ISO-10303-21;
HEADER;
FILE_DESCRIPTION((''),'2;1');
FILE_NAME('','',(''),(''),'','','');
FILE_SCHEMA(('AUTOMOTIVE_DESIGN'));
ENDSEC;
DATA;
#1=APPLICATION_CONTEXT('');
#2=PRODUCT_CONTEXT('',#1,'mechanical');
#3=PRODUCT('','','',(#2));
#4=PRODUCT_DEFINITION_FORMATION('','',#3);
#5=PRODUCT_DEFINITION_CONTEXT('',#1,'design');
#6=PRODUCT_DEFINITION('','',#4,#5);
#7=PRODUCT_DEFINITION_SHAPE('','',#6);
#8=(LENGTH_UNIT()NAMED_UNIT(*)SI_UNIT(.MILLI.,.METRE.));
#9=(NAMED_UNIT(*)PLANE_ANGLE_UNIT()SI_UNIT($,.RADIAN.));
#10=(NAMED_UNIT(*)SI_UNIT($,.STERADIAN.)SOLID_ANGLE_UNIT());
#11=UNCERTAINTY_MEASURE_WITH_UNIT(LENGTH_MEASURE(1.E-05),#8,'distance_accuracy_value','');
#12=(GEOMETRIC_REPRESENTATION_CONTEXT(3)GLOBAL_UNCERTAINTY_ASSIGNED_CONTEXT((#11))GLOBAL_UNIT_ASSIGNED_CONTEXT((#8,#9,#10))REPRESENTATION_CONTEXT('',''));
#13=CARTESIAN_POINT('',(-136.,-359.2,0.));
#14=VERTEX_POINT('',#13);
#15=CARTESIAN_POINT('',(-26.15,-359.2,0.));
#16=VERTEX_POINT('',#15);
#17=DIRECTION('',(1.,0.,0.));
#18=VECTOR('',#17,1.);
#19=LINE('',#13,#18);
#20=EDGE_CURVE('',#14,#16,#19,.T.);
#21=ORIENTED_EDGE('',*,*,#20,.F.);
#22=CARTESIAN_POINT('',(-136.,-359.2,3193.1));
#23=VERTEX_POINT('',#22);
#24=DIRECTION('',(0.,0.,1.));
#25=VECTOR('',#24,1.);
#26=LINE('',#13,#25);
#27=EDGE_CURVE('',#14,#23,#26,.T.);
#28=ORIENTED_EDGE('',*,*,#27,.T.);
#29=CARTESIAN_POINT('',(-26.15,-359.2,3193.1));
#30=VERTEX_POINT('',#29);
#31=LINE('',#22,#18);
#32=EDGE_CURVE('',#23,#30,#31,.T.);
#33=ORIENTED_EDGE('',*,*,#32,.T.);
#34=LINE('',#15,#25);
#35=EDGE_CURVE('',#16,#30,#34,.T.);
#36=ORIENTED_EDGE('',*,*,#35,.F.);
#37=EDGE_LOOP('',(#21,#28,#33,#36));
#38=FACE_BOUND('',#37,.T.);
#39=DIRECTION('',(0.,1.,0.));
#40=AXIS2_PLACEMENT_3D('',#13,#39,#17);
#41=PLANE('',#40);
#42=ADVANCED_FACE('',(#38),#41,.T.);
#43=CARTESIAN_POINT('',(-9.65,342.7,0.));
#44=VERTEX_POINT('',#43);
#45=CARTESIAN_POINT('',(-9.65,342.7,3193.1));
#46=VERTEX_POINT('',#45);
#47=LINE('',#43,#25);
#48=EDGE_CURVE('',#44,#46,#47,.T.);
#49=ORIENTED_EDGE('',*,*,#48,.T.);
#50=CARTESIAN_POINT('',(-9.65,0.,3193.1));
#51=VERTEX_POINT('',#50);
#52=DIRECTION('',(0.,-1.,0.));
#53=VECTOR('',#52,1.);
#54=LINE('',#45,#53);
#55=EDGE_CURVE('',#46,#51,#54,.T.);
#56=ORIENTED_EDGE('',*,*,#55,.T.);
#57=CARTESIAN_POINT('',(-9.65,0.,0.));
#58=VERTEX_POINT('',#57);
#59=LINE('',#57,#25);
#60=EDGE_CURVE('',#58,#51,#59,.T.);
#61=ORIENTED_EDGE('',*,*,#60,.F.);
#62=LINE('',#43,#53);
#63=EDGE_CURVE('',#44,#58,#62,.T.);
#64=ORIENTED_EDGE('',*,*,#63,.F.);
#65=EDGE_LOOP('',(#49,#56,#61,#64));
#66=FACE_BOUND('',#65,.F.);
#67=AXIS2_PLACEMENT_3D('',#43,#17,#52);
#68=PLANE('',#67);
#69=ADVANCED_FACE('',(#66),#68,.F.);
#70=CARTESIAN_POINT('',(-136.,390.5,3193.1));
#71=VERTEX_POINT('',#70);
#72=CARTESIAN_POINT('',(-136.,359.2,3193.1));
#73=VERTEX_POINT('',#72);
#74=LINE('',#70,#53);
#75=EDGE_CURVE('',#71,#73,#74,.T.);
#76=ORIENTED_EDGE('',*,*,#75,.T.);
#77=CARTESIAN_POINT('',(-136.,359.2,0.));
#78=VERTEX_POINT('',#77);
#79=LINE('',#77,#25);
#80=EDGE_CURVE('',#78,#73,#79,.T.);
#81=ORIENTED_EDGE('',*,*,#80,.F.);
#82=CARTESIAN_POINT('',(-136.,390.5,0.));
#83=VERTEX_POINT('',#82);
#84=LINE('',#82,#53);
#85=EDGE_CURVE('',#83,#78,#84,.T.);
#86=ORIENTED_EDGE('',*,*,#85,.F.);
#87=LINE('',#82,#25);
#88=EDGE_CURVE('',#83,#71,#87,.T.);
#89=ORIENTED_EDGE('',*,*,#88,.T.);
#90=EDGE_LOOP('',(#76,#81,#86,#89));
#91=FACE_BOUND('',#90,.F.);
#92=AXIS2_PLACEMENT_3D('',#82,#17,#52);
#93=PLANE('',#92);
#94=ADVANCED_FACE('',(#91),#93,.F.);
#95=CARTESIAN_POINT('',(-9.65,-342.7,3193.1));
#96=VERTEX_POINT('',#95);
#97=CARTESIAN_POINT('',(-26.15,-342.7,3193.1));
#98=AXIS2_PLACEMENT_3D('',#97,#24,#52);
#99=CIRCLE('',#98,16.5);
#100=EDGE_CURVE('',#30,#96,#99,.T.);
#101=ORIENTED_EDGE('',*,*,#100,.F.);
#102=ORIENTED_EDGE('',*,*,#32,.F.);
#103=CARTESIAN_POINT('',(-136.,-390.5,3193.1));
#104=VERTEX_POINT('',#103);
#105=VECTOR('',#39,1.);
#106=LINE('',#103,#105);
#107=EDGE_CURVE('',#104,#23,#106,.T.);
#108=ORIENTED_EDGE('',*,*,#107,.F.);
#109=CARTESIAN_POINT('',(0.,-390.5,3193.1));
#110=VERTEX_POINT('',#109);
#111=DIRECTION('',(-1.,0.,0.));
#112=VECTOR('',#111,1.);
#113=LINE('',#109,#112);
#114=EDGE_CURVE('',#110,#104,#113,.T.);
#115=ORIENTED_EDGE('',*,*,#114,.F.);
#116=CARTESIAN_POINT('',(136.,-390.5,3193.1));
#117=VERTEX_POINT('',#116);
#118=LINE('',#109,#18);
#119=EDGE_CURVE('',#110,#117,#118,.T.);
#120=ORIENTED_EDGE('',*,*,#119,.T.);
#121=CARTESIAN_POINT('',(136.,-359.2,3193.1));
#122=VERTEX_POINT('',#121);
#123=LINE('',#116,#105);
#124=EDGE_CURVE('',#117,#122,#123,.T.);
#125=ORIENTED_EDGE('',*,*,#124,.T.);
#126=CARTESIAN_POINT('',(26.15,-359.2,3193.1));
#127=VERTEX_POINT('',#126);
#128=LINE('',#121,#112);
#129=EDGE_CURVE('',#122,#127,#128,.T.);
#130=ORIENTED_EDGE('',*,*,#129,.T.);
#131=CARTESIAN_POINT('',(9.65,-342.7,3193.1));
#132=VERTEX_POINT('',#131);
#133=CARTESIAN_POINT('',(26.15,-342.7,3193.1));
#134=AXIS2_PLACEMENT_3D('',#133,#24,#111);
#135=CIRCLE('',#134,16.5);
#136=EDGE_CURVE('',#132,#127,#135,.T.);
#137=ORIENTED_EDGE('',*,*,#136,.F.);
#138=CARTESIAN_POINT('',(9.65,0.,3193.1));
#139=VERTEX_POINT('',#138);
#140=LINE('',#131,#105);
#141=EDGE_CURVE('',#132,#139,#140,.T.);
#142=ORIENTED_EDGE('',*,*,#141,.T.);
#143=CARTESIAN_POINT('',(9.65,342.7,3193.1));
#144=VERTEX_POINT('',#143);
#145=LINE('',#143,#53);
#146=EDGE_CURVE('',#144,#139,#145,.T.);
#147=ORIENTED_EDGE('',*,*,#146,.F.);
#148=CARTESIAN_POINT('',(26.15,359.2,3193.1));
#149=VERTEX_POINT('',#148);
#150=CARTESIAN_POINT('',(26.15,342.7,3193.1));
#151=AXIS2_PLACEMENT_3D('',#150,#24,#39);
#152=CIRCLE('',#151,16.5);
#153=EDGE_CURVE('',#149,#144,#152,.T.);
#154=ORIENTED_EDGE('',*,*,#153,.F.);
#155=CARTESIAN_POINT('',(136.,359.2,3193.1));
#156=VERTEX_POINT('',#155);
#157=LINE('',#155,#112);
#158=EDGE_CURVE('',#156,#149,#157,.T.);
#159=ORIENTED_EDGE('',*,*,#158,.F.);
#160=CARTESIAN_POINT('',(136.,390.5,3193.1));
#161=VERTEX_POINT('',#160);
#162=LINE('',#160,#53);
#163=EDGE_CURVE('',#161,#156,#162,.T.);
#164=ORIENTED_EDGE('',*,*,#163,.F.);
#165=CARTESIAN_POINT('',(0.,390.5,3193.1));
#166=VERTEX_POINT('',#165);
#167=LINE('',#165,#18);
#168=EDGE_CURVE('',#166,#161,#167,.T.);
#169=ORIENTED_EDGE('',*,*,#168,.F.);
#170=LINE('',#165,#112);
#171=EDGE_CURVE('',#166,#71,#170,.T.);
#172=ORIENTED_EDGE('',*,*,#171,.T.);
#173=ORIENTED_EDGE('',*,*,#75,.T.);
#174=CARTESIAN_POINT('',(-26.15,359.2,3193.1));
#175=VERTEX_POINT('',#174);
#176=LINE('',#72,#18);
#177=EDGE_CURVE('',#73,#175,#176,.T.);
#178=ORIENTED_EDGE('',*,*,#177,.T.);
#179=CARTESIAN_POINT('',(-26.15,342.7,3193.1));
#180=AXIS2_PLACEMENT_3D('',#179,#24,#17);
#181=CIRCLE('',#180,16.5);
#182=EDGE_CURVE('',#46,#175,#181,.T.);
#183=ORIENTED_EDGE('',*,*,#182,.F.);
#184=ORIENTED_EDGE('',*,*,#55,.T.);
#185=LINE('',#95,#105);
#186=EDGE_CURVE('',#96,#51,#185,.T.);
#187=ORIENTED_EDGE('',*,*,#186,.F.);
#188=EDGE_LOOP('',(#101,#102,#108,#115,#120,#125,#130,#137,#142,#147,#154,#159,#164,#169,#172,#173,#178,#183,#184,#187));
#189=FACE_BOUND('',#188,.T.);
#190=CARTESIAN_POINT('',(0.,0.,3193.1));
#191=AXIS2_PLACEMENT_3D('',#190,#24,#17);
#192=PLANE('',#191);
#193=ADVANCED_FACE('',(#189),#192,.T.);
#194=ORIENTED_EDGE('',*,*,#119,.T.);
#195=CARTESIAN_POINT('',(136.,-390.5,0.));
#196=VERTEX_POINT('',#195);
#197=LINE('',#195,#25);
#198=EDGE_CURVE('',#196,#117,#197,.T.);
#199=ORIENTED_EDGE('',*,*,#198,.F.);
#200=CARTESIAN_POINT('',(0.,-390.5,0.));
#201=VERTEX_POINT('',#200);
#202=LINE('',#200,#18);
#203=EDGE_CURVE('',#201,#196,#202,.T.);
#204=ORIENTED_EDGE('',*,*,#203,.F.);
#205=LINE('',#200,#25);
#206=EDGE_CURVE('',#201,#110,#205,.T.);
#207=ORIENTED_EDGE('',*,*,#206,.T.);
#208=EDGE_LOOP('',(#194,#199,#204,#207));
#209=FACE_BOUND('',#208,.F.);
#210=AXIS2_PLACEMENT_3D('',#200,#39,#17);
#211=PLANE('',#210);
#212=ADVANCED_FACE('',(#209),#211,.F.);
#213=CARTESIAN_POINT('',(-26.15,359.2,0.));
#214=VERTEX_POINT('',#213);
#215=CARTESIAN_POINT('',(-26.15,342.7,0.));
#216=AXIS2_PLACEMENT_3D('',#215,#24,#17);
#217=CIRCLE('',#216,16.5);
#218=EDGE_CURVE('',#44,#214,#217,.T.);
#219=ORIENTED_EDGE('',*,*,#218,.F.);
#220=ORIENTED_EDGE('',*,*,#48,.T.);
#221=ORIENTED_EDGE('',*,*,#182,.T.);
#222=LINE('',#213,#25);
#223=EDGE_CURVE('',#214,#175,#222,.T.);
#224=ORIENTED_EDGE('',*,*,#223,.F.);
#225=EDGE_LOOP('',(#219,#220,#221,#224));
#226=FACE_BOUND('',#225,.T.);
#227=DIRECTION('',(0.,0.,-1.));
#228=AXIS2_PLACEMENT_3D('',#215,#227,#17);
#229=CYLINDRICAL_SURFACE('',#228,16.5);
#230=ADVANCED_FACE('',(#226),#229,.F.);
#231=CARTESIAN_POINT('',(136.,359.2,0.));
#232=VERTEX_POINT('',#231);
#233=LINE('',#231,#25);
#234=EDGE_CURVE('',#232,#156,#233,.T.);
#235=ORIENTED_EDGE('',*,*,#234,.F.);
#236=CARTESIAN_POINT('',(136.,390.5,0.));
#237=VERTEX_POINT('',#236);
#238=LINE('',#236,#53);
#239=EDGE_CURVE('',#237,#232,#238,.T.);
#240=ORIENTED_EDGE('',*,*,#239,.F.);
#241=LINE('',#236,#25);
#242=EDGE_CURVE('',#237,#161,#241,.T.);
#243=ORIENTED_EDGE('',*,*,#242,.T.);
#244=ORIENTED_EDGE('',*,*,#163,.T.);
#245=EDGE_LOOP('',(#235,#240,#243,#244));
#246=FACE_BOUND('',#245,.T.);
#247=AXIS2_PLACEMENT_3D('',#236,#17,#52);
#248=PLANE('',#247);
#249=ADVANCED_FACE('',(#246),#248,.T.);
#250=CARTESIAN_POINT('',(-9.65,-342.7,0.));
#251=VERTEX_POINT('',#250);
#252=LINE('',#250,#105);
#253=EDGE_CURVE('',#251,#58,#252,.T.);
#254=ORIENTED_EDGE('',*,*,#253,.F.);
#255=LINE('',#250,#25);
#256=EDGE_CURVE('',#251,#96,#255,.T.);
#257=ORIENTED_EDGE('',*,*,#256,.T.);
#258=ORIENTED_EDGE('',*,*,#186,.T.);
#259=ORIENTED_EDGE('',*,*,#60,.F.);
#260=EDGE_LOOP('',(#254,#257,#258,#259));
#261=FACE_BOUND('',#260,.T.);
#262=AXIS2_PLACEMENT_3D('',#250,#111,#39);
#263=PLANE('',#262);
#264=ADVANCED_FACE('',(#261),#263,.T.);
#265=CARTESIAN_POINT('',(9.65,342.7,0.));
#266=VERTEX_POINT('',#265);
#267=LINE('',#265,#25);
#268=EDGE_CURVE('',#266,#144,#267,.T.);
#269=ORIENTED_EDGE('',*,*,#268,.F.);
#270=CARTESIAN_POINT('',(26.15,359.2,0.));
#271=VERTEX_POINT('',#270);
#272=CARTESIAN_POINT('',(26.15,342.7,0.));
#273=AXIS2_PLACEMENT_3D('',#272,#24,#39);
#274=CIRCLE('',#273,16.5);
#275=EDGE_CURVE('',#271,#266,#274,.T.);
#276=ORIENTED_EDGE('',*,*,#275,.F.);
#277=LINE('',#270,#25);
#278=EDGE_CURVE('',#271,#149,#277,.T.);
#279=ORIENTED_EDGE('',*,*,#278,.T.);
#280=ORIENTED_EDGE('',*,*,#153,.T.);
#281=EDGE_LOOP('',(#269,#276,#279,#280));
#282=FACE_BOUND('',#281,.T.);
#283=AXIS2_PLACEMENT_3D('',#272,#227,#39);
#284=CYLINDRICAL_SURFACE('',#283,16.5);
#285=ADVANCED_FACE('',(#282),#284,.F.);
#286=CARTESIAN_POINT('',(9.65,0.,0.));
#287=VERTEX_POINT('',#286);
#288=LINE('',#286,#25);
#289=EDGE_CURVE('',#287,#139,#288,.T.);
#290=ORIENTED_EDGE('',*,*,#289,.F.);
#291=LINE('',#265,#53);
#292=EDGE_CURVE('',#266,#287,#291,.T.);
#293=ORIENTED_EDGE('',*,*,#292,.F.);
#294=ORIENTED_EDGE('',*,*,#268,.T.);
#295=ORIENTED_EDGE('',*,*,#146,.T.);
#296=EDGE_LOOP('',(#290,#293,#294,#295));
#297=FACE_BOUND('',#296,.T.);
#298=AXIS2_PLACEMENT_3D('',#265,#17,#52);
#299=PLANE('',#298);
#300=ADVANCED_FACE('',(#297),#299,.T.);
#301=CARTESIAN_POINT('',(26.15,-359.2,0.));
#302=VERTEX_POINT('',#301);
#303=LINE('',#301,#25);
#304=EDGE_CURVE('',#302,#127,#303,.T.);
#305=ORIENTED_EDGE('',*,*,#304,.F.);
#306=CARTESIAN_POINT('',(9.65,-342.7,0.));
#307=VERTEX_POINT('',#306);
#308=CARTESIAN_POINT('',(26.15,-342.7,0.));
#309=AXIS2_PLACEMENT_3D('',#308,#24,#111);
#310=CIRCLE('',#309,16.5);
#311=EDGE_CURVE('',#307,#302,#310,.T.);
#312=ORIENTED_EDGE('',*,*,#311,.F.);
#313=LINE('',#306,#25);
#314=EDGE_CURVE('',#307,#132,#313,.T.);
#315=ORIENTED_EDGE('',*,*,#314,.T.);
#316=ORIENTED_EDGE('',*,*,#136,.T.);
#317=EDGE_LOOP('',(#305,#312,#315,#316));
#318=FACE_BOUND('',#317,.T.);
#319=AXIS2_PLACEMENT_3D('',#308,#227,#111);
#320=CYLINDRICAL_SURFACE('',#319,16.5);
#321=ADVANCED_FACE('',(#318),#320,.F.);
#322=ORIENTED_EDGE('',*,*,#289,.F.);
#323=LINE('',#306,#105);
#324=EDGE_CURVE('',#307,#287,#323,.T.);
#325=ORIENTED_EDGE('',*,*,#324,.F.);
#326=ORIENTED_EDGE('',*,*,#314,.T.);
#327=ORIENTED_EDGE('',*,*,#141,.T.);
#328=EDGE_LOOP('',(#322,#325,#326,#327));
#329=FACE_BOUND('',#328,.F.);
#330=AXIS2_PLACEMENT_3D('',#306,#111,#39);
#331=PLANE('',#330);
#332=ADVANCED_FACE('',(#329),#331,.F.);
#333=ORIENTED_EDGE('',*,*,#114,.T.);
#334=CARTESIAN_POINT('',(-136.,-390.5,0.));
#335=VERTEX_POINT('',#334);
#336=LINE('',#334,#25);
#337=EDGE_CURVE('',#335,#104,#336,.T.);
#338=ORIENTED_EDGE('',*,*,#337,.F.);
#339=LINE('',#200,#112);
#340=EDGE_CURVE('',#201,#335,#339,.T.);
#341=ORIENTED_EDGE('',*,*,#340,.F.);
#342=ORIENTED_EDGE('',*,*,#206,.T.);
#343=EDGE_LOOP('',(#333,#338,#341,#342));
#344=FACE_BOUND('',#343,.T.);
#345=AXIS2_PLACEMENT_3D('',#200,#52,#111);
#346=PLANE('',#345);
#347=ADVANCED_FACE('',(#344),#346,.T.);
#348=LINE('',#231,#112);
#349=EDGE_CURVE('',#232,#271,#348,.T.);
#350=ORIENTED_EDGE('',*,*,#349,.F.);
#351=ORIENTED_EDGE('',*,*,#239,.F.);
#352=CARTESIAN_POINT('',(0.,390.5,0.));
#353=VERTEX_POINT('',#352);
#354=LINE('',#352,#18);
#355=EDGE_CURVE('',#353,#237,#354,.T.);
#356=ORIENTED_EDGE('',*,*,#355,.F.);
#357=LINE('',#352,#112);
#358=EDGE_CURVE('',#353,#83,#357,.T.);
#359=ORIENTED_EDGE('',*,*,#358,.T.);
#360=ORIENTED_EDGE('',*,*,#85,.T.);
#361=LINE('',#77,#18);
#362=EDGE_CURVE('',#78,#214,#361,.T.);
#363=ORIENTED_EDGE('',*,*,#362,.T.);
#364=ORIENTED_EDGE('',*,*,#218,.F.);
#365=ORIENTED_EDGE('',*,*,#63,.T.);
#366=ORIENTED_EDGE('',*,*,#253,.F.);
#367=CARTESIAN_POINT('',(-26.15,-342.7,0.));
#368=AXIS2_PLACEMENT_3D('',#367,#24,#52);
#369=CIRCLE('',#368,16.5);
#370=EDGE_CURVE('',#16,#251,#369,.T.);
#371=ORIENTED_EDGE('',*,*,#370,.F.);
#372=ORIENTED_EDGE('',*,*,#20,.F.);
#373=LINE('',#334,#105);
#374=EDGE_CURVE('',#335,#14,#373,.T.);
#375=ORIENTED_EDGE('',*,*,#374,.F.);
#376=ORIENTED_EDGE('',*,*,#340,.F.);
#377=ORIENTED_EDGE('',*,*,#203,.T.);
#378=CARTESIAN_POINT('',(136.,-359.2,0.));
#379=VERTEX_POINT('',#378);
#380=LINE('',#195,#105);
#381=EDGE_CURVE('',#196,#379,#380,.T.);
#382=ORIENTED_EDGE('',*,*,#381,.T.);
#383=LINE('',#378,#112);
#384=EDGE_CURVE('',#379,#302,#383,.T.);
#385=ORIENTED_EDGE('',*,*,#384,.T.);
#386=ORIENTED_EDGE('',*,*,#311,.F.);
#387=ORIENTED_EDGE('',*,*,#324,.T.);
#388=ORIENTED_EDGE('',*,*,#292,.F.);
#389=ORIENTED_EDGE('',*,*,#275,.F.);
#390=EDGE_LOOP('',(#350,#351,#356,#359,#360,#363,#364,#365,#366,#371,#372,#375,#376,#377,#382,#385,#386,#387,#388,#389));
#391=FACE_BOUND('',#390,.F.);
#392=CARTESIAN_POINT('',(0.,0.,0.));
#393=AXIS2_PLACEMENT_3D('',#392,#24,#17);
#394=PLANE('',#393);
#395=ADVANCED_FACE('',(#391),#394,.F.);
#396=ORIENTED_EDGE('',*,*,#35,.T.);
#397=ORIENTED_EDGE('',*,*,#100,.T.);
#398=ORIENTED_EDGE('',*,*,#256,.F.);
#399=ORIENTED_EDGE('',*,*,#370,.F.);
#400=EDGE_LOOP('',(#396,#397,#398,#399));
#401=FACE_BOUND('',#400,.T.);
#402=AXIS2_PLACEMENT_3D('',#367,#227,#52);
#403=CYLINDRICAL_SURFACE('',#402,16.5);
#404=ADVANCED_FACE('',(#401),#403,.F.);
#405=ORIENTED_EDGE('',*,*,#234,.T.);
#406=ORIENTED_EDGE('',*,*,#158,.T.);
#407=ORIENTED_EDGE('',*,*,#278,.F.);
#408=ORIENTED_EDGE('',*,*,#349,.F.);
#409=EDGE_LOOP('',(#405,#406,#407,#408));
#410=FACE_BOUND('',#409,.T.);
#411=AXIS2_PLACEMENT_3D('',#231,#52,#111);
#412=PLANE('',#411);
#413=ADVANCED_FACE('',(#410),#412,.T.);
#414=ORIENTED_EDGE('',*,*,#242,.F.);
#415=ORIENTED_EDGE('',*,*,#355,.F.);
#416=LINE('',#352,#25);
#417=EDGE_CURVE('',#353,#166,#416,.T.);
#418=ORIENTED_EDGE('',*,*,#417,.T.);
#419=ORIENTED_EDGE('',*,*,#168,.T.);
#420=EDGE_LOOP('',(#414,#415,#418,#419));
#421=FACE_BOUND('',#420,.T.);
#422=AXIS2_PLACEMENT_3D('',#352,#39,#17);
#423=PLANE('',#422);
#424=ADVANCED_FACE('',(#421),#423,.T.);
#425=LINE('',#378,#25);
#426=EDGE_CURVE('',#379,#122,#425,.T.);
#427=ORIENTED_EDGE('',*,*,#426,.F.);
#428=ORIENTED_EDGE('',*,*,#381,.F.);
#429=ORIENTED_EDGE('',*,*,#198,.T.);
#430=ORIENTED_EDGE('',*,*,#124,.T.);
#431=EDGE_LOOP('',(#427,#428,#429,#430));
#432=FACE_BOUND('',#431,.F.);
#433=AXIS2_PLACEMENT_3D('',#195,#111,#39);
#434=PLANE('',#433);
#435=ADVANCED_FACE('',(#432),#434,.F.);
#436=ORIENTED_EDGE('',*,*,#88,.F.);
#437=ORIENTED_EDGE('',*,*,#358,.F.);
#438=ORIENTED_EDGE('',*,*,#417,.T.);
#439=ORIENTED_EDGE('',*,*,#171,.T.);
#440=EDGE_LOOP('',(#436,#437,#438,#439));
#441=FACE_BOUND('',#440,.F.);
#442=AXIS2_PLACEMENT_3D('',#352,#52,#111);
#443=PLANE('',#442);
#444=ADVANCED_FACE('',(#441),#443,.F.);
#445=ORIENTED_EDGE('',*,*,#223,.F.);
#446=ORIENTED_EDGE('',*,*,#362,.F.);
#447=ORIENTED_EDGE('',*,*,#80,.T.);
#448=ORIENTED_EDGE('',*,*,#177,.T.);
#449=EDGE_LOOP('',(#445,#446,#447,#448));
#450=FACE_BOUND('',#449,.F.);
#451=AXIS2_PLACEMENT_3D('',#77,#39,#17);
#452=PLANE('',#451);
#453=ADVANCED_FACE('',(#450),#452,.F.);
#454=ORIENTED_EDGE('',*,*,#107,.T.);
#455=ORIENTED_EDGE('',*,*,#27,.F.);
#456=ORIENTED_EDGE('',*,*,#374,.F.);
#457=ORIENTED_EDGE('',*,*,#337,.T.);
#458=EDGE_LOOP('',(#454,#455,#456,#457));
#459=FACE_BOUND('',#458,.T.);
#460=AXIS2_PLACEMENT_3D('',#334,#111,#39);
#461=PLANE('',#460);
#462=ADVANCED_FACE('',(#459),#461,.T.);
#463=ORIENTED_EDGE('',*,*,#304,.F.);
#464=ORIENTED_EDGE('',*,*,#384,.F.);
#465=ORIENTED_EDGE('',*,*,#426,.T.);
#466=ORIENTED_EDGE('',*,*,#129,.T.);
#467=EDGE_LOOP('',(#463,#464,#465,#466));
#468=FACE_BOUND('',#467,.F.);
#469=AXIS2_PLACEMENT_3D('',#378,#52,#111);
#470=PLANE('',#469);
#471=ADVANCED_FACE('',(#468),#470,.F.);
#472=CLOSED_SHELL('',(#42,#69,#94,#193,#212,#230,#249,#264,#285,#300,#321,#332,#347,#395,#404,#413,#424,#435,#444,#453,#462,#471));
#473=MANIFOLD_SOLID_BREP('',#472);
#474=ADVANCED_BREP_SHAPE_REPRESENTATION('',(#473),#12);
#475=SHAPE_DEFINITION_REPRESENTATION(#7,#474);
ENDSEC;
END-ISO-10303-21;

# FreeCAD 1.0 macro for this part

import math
import FreeCAD as App
import Part
import Sketcher
Q = App.Units.Quantity

doc = App.newDocument("Part")
body = doc.addObject("PartDesign::Body", "Body")

# Sketch on XY plane
sketch1 = body.newObject("Sketcher::SketchObject", "Sketch")
sketch1.AttachmentSupport = (doc.getObject("XY_Plane"), [""])
sketch1.MapMode = "FlatFace"
sketch1.addGeometry([
    Part.LineSegment(App.Vector(-136, -359.2, 0), App.Vector(-136, -390.5, 0)),  # 0
    Part.LineSegment(App.Vector(-136, -390.5, 0), App.Vector(136, -390.5, 0)),  # 1
    Part.LineSegment(App.Vector(136, -390.5, 0), App.Vector(136, -359.2, 0)),  # 2
    Part.LineSegment(App.Vector(136, -359.2, 0), App.Vector(26.15, -359.2, 0)),  # 3
    Part.ArcOfCircle(Part.Circle(App.Vector(26.15, -342.7, 0), App.Vector(0, 0, 1), 16.5), math.radians(180), math.radians(270)),  # 4
    Part.LineSegment(App.Vector(9.65, -342.7, 0), App.Vector(9.65, 342.7, 0)),  # 5
    Part.ArcOfCircle(Part.Circle(App.Vector(26.15, 342.7, 0), App.Vector(0, 0, 1), 16.5), math.radians(90), math.radians(180)),  # 6
    Part.LineSegment(App.Vector(26.15, 359.2, 0), App.Vector(136, 359.2, 0)),  # 7
    Part.LineSegment(App.Vector(136, 359.2, 0), App.Vector(136, 390.5, 0)),  # 8
    Part.LineSegment(App.Vector(136, 390.5, 0), App.Vector(-136, 390.5, 0)),  # 9
    Part.LineSegment(App.Vector(-136, 390.5, 0), App.Vector(-136, 359.2, 0)),  # 10
    Part.LineSegment(App.Vector(-136, 359.2, 0), App.Vector(-26.15, 359.2, 0)),  # 11
    Part.ArcOfCircle(Part.Circle(App.Vector(-26.15, 342.7, 0), App.Vector(0, 0, 1), 16.5), math.radians(0), math.radians(90)),  # 12
    Part.LineSegment(App.Vector(-9.65, 342.7, 0), App.Vector(-9.65, -342.7, 0)),  # 13
    Part.ArcOfCircle(Part.Circle(App.Vector(-26.15, -342.7, 0), App.Vector(0, 0, 1), 16.5), math.radians(-90), math.radians(0)),  # 14
    Part.LineSegment(App.Vector(-26.15, -359.2, 0), App.Vector(-136, -359.2, 0)),  # 15
], False)
sketch1.addConstraint([
    Sketcher.Constraint("Coincident", 0, 2, 1, 1),
    Sketcher.Constraint("Coincident", 1, 2, 2, 1),
    Sketcher.Constraint("Coincident", 2, 2, 3, 1),
    Sketcher.Constraint("Tangent", 3, 2, 4, 2),
    Sketcher.Constraint("Tangent", 4, 1, 5, 1),
    Sketcher.Constraint("Tangent", 5, 2, 6, 2),
    Sketcher.Constraint("Tangent", 6, 1, 7, 1),
    Sketcher.Constraint("Coincident", 7, 2, 8, 1),
    Sketcher.Constraint("Coincident", 8, 2, 9, 1),
    Sketcher.Constraint("Coincident", 9, 2, 10, 1),
    Sketcher.Constraint("Coincident", 10, 2, 11, 1),
    Sketcher.Constraint("Tangent", 11, 2, 12, 2),
    Sketcher.Constraint("Tangent", 12, 1, 13, 1),
    Sketcher.Constraint("Tangent", 13, 2, 14, 2),
    Sketcher.Constraint("Tangent", 14, 1, 15, 1),
    Sketcher.Constraint("Coincident", 15, 2, 0, 1),
    Sketcher.Constraint("Vertical", 0),
    Sketcher.Constraint("Horizontal", 1),
    Sketcher.Constraint("Vertical", 2),
    Sketcher.Constraint("Horizontal", 3),
    Sketcher.Constraint("Vertical", 5),
    Sketcher.Constraint("Horizontal", 7),
    Sketcher.Constraint("Vertical", 8),
    Sketcher.Constraint("Horizontal", 9),
    Sketcher.Constraint("Vertical", 10),
    Sketcher.Constraint("Horizontal", 11),
    Sketcher.Constraint("Vertical", 13),
    Sketcher.Constraint("Horizontal", 15),
    Sketcher.Constraint("Equal", 4, 6),
    Sketcher.Constraint("Equal", 6, 12),
    Sketcher.Constraint("Equal", 12, 14),
    Sketcher.Constraint("Symmetric", 4, 3, 12, 3, -1, 1),
    Sketcher.Constraint("Symmetric", 0, 2, 8, 2, -1, 1),
    Sketcher.Constraint("Symmetric", 7, 2, 10, 2, -2),
    Sketcher.Constraint("Symmetric", 2, 2, 15, 2, -2),
    Sketcher.Constraint("Radius", 4, Q("16.5 mm")),
    Sketcher.Constraint("DistanceY", 0, 2, 0, 1, Q("31.3 mm")),
    Sketcher.Constraint("DistanceX", 0, 2, -1, 1, Q("136 mm")),
    Sketcher.Constraint("DistanceY", 0, 2, -1, 1, Q("390.5 mm")),
    Sketcher.Constraint("DistanceX", -1, 1, 4, 1, Q("9.65 mm")),
])
pad1 = body.newObject("PartDesign::Pad", "Pad")
pad1.Profile = sketch1
pad1.Length = 3193.1

doc.recompute()
